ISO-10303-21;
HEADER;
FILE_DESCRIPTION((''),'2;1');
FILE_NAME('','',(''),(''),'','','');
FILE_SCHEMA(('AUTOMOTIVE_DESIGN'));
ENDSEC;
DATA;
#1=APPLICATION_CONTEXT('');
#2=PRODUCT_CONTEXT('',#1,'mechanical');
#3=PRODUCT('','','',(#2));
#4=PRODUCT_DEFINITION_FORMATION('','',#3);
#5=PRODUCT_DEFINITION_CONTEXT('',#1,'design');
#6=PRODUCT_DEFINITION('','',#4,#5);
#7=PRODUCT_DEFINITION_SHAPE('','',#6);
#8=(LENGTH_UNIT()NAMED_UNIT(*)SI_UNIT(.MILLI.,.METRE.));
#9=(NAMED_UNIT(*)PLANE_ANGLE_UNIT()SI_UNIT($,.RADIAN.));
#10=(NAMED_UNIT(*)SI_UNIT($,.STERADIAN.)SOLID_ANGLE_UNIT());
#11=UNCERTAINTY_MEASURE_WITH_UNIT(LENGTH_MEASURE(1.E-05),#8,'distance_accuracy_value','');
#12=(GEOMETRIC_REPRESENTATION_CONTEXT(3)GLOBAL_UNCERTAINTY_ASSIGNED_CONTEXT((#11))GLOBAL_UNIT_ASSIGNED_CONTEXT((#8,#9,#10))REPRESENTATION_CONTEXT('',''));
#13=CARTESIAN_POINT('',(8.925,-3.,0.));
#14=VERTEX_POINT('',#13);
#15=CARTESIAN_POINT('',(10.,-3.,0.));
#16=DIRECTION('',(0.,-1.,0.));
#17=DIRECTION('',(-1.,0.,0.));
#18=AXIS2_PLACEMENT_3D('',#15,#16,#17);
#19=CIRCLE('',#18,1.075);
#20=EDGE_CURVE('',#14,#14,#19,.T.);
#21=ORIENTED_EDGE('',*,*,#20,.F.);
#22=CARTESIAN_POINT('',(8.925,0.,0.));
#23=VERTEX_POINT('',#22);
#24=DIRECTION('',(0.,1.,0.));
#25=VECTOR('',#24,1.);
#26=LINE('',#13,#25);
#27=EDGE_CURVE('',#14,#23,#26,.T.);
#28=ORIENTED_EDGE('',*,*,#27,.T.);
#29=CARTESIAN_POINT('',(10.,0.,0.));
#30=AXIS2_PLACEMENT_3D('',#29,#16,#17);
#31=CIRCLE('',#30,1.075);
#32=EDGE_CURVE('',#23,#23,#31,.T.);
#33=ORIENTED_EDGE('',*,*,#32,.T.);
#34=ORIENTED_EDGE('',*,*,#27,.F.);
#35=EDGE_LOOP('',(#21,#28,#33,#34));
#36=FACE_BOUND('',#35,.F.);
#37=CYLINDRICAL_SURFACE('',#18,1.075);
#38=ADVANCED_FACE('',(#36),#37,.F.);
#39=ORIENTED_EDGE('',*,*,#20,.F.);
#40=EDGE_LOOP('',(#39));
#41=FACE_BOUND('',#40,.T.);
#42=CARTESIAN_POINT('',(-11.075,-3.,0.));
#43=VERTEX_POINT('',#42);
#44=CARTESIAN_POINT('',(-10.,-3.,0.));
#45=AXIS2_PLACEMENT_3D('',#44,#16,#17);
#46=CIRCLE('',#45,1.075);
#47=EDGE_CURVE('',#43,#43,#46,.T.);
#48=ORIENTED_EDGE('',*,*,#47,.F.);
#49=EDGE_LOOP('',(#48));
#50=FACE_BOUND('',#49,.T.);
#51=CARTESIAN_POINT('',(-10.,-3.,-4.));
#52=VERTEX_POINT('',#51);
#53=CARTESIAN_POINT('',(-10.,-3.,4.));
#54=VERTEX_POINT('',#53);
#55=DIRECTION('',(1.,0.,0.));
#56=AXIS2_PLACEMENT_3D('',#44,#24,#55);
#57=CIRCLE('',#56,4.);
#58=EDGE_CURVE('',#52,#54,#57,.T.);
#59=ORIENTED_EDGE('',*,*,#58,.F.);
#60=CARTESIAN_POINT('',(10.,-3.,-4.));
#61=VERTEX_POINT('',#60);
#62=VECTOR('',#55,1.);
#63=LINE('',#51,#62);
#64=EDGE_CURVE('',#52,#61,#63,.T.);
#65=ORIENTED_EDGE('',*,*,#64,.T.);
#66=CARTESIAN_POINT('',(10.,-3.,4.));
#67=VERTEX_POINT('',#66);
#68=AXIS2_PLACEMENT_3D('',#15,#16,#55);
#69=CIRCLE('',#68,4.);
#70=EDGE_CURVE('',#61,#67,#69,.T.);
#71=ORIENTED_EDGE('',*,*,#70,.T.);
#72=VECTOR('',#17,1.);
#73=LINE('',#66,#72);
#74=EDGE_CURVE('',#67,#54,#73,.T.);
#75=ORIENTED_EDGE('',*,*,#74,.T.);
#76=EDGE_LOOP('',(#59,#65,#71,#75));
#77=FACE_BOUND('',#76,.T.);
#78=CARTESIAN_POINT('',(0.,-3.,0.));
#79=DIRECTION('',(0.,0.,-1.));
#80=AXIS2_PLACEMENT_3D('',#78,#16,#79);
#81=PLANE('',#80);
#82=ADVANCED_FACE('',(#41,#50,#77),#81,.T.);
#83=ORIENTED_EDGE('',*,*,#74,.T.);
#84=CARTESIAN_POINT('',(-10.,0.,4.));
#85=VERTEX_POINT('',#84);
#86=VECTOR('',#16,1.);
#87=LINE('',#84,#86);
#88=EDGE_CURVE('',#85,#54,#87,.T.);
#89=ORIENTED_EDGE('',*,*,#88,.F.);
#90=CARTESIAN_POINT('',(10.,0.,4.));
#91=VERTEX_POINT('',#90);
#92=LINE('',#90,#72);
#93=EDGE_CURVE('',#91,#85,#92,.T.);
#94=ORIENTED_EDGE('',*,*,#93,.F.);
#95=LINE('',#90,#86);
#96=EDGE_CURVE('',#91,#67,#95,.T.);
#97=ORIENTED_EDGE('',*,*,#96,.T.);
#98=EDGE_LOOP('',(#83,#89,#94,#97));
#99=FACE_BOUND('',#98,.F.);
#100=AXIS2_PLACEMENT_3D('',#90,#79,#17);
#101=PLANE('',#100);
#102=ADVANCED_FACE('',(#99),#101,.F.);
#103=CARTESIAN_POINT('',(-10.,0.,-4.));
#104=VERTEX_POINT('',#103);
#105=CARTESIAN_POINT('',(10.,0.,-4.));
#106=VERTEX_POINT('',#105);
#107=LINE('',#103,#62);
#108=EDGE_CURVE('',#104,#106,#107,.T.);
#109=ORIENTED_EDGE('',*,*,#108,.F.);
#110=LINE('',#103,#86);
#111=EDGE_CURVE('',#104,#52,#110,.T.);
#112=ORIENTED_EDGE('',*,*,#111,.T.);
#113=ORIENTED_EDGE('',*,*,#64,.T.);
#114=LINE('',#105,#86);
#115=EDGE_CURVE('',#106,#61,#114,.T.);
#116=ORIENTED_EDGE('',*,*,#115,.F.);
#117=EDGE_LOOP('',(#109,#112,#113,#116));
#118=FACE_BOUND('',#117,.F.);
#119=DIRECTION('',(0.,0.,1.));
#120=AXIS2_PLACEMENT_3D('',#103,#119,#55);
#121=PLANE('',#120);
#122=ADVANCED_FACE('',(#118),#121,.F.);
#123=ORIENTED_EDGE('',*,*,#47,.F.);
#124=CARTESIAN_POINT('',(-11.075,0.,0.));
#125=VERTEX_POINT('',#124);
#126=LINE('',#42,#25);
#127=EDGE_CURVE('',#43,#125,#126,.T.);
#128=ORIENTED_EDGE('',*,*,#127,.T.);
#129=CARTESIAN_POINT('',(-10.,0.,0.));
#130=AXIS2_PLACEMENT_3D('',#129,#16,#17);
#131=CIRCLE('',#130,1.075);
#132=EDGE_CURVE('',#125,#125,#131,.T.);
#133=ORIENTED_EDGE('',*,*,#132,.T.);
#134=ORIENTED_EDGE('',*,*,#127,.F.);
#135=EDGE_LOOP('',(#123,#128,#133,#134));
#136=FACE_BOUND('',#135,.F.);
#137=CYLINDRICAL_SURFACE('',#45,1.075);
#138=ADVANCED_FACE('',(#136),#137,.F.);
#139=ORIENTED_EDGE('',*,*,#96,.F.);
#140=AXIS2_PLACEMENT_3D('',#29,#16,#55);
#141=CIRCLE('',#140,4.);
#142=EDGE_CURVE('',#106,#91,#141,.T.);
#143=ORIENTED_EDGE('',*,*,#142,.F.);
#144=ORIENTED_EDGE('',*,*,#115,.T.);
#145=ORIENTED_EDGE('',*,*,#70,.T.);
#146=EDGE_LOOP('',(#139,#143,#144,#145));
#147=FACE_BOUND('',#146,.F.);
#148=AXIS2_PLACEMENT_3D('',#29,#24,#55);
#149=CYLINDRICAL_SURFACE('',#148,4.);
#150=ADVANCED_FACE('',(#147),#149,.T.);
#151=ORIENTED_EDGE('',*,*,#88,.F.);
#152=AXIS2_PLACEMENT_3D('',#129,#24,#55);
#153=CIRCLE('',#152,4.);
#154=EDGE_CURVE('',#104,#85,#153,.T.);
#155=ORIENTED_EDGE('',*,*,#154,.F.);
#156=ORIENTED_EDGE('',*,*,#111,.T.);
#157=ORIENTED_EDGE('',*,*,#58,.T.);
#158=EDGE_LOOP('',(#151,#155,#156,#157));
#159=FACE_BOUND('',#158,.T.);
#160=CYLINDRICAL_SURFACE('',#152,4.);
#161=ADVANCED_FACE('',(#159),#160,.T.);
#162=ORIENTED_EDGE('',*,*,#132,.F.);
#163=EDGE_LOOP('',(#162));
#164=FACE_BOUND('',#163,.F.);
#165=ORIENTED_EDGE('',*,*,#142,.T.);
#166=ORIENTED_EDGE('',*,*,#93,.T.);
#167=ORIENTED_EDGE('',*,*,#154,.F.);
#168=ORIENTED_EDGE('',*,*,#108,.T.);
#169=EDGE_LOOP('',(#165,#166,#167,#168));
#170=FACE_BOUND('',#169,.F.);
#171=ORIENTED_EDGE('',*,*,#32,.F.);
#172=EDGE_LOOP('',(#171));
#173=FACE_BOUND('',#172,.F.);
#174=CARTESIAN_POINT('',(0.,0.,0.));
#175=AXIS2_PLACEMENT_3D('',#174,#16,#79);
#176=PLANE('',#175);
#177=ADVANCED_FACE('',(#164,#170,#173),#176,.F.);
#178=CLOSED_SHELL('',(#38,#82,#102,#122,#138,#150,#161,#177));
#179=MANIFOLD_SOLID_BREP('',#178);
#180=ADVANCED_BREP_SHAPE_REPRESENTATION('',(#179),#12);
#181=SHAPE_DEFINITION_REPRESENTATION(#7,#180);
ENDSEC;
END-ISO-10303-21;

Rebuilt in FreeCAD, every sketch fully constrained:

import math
import FreeCAD as App
import Part
import Sketcher

doc = App.newDocument("Part")
body = doc.addObject("PartDesign::Body", "Body")

# Sketch on XZ plane
sketch1 = body.newObject("Sketcher::SketchObject", "Sketch")
sketch1.AttachmentSupport = (doc.getObject("XZ_Plane"), [""])
sketch1.MapMode = "FlatFace"
sketch1.addGeometry([
    Part.ArcOfCircle(Part.Circle(App.Vector(-10, 0, 0), App.Vector(0, 0, 1), 4), math.radians(90), math.radians(270)),
    Part.LineSegment(App.Vector(-10, -4, 0), App.Vector(10, -4, 0)),
    Part.ArcOfCircle(Part.Circle(App.Vector(10, 0, 0), App.Vector(0, 0, 1), 4), math.radians(-90), math.radians(90)),
    Part.LineSegment(App.Vector(10, 4, 0), App.Vector(-10, 4, 0)),
], False)
sketch1.addConstraint([
    Sketcher.Constraint("Tangent", 0, 2, 1, 1),
    Sketcher.Constraint("Tangent", 1, 2, 2, 1),
    Sketcher.Constraint("Tangent", 2, 2, 3, 1),
    Sketcher.Constraint("Tangent", 3, 2, 0, 1),
    Sketcher.Constraint("Horizontal", 1),
    Sketcher.Constraint("Horizontal", 3),
    Sketcher.Constraint("Symmetric", 0, 3, 2, 3, -1, 1),
    Sketcher.Constraint("DistanceX", 0, 3, -1, 1, 10.0),
    Sketcher.Constraint("Radius", 0, 4.0),
])
pad1 = body.newObject("PartDesign::Pad", "Pad")
pad1.Profile = sketch1
pad1.Length = 3

# Sketch on XZ plane
sketch2 = body.newObject("Sketcher::SketchObject", "Sketch001")
sketch2.AttachmentSupport = (doc.getObject("XZ_Plane"), [""])
sketch2.MapMode = "FlatFace"
sketch2.AttachmentOffset = App.Placement(App.Vector(0, 0, 3), App.Rotation())
sketch2.addGeometry([
    Part.Circle(App.Vector(10, 0, 0), App.Vector(0, 0, 1), 1.075),
    Part.Circle(App.Vector(-10, 0, 0), App.Vector(0, 0, 1), 1.075),
], False)
sketch2.addConstraint([
    Sketcher.Constraint("Equal", 0, 1),
    Sketcher.Constraint("Symmetric", 0, 3, 1, 3, -1, 1),
    Sketcher.Constraint("PointOnObject", 0, 3, -1),
    Sketcher.Constraint("Diameter", 0, 2.15),
    Sketcher.Constraint("DistanceX", -1, 1, 0, 3, 10.0),
])
pocket1 = body.newObject("PartDesign::Pocket", "Pocket")
pocket1.Profile = sketch2
pocket1.Length = 5.6361

doc.recompute()
